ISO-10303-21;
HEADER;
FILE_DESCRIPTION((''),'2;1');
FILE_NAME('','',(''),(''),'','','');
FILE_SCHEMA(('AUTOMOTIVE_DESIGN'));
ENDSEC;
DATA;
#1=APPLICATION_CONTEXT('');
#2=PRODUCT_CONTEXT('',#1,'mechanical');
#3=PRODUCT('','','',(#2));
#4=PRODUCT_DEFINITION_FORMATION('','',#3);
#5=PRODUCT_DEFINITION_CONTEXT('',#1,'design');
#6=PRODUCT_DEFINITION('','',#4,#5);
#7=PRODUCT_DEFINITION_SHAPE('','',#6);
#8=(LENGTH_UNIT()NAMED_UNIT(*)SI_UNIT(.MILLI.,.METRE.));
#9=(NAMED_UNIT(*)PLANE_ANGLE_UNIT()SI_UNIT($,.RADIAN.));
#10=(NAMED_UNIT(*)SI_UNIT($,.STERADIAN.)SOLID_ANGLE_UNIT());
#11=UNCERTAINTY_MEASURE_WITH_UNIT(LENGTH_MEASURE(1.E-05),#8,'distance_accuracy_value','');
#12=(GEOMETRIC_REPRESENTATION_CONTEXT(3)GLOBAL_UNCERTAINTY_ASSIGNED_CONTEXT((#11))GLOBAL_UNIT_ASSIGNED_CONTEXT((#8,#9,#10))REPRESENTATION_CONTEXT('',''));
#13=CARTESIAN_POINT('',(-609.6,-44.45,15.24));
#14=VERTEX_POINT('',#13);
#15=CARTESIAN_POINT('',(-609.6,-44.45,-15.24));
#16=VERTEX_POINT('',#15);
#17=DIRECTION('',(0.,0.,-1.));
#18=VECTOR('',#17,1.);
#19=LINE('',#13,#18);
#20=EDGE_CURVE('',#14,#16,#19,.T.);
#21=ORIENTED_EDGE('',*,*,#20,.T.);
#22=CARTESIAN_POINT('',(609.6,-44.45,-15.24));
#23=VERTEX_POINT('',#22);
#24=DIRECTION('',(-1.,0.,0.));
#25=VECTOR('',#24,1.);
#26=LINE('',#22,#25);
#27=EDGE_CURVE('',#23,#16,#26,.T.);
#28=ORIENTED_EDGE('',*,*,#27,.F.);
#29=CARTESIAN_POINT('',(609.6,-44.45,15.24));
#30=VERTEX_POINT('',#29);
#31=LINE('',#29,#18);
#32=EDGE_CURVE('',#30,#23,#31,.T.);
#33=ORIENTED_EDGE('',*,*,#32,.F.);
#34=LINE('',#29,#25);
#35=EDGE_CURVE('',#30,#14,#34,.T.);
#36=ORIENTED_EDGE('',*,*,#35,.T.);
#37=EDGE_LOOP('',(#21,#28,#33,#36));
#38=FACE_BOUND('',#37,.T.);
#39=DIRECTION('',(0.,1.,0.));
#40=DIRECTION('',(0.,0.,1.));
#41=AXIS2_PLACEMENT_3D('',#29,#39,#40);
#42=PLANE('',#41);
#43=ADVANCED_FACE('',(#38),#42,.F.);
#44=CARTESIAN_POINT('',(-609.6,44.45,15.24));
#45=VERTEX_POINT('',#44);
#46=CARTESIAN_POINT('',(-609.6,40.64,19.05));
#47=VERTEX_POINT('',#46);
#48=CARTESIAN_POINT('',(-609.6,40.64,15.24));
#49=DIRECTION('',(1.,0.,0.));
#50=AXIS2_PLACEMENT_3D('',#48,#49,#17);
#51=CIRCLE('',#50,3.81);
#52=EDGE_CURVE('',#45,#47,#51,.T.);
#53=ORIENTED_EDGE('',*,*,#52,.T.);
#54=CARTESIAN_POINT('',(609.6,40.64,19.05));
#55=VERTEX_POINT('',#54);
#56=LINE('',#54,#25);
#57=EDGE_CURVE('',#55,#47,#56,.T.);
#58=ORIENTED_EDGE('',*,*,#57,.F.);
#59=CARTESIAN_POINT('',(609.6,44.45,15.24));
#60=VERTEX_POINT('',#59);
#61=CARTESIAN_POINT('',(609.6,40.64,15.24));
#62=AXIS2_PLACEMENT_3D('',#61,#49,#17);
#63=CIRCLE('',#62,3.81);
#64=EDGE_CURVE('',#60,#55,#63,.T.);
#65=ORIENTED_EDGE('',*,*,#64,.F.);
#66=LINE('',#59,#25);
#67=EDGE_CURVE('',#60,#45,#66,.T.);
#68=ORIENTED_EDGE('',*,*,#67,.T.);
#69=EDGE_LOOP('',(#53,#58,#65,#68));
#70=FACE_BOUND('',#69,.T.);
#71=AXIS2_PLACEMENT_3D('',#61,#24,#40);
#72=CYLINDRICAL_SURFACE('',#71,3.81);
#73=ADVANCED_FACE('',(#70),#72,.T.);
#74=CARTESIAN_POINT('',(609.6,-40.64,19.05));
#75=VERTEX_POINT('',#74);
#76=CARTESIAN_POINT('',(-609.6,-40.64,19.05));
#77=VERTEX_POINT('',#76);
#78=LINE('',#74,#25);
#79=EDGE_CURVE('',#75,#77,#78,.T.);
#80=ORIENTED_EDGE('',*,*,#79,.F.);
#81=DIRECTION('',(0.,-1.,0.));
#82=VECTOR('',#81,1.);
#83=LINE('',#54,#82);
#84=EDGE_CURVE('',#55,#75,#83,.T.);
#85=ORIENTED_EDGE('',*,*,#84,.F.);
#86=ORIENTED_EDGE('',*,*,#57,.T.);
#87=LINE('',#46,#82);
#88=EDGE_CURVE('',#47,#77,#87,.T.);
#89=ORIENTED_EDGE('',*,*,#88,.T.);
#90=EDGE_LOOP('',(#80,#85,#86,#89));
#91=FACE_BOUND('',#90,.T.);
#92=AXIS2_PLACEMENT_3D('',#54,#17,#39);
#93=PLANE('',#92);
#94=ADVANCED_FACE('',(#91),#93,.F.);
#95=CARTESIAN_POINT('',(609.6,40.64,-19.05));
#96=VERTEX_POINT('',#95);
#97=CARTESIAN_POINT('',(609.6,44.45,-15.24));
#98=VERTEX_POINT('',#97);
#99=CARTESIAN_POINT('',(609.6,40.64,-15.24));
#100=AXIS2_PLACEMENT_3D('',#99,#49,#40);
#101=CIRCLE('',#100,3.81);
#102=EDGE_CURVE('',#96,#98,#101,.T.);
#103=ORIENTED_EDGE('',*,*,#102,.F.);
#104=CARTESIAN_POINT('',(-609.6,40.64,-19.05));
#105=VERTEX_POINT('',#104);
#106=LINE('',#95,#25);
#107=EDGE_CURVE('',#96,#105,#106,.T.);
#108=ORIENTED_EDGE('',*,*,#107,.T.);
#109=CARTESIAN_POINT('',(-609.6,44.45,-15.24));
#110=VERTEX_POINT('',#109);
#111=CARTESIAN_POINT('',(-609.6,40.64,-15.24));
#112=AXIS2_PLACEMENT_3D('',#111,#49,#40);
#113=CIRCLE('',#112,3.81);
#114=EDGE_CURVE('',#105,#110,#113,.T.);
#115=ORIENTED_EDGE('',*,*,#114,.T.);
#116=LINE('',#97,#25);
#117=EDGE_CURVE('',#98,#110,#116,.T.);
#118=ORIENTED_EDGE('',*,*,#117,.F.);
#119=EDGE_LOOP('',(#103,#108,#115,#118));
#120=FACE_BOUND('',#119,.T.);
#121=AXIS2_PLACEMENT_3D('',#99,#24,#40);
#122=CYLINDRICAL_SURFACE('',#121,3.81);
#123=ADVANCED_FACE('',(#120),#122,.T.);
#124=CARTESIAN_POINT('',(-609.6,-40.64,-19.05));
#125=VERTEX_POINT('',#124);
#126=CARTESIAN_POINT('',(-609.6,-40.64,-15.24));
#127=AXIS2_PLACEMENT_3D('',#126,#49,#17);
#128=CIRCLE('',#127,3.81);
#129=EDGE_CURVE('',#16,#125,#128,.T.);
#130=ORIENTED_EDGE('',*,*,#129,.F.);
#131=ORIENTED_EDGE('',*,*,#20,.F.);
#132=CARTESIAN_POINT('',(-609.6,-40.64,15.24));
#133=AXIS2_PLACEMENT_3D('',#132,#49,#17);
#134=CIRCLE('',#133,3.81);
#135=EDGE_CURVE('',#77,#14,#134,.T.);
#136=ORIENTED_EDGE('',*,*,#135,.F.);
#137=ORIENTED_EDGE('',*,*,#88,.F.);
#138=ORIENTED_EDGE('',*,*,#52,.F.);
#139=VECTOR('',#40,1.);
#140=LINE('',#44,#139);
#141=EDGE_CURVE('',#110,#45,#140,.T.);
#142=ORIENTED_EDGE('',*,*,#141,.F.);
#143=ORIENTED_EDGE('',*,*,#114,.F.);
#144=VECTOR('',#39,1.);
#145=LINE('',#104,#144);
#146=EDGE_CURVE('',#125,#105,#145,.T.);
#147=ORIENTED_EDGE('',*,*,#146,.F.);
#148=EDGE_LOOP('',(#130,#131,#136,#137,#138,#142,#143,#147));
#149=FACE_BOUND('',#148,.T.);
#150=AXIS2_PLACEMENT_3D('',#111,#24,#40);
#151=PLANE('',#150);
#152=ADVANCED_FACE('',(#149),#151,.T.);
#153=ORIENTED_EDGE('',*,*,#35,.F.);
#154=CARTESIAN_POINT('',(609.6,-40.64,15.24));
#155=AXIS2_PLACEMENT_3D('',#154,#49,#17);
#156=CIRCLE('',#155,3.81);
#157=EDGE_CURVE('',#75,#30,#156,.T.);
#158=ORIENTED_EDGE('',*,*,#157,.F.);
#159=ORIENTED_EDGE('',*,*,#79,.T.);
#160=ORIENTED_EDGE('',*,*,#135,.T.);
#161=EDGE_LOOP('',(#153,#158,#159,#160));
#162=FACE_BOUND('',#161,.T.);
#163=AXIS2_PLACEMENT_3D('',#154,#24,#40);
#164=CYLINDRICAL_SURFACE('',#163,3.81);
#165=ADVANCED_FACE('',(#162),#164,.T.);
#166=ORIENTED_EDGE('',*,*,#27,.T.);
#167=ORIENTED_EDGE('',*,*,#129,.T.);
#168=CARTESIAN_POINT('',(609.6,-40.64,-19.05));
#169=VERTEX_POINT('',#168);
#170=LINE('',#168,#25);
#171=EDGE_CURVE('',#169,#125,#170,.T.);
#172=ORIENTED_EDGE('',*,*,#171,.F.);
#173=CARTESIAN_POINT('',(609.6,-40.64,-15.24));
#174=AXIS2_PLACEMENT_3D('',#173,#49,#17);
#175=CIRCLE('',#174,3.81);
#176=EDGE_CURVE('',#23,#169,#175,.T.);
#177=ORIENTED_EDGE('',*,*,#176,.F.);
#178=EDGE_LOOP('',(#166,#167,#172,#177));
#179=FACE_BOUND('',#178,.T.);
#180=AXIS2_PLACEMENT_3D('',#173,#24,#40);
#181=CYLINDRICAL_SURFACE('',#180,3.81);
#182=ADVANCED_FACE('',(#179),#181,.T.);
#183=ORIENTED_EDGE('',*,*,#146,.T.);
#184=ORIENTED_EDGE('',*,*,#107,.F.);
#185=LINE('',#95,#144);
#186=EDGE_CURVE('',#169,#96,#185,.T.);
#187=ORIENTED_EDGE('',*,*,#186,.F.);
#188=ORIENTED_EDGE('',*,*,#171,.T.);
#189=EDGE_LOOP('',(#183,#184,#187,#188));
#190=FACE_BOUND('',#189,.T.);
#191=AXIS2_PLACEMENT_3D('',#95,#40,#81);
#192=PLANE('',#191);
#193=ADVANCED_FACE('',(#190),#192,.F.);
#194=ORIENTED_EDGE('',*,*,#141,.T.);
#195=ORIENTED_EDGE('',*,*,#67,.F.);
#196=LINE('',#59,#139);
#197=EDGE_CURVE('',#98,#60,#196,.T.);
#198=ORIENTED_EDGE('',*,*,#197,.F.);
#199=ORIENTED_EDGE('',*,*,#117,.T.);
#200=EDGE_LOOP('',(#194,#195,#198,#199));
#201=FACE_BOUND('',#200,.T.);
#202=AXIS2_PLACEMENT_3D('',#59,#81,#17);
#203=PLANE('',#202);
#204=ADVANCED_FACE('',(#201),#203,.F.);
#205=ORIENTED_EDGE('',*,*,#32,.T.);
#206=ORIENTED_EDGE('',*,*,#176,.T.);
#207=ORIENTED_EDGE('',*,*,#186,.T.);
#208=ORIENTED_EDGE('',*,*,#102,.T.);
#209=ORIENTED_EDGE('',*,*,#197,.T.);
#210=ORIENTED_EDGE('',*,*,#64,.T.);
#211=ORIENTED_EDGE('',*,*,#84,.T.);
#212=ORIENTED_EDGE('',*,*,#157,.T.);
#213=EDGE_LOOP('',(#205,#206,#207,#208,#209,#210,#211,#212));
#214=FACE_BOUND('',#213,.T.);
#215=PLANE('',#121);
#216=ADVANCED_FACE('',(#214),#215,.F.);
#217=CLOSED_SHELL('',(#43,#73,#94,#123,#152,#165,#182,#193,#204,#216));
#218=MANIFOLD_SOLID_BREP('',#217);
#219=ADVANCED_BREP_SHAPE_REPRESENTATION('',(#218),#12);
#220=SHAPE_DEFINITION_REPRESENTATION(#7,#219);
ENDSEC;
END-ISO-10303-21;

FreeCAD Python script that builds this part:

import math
import FreeCAD as App
import Part
import Sketcher
Q = App.Units.Quantity

doc = App.newDocument("Part")
params = doc.addObject("Spreadsheet::Sheet", "Params")
for row, (alias, value) in enumerate([
    ("sketch1_radius", "0.15 in"),
    ("sketch1_width", "3.2 in"),
    ("sketch1_height", "1.2 in"),
    ("pad1_length", "48 in"),
], start=1):
    params.set(f"A{row}", alias)
    params.set(f"B{row}", "=" + value)
    params.setAlias(f"B{row}", alias)

body = doc.addObject("PartDesign::Body", "Body")

sketch1 = body.newObject("Sketcher::SketchObject", "Sketch")
sketch1.AttachmentSupport = (doc.getObject("YZ_Plane"), [""])
sketch1.MapMode = "FlatFace"
sketch1.addGeometry(Part.LineSegment(App.Vector(44.5, -15.2, 0), App.Vector(44.5, 15.2, 0)), False)
sketch1.addGeometry(Part.ArcOfCircle(Part.Circle(App.Vector(40.6, 15.2, 0), App.Vector(0, 0, 1), 3.8), math.radians(0), math.radians(90)), False)
sketch1.addGeometry(Part.LineSegment(App.Vector(40.6, 19.1, 0), App.Vector(-40.6, 19.1, 0)), False)
sketch1.addGeometry(Part.ArcOfCircle(Part.Circle(App.Vector(-40.6, 15.2, 0), App.Vector(0, 0, 1), 3.8), math.radians(90), math.radians(180)), False)
sketch1.addGeometry(Part.LineSegment(App.Vector(-44.5, 15.2, 0), App.Vector(-44.5, -15.2, 0)), False)
sketch1.addGeometry(Part.ArcOfCircle(Part.Circle(App.Vector(-40.6, -15.2, 0), App.Vector(0, 0, 1), 3.8), math.radians(-180), math.radians(-90)), False)
sketch1.addGeometry(Part.LineSegment(App.Vector(-40.6, -19.1, 0), App.Vector(40.6, -19.1, 0)), False)
sketch1.addGeometry(Part.ArcOfCircle(Part.Circle(App.Vector(40.6, -15.2, 0), App.Vector(0, 0, 1), 3.8), math.radians(-90), math.radians(0)), False)
sketch1.addConstraint(Sketcher.Constraint("Tangent", 0, 2, 1, 1))
sketch1.addConstraint(Sketcher.Constraint("Tangent", 1, 2, 2, 1))
sketch1.addConstraint(Sketcher.Constraint("Tangent", 2, 2, 3, 1))
sketch1.addConstraint(Sketcher.Constraint("Tangent", 3, 2, 4, 1))
sketch1.addConstraint(Sketcher.Constraint("Tangent", 4, 2, 5, 1))
sketch1.addConstraint(Sketcher.Constraint("Tangent", 5, 2, 6, 1))
sketch1.addConstraint(Sketcher.Constraint("Tangent", 6, 2, 7, 1))
sketch1.addConstraint(Sketcher.Constraint("Tangent", 7, 2, 0, 1))
sketch1.addConstraint(Sketcher.Constraint("Vertical", 0))
sketch1.addConstraint(Sketcher.Constraint("Horizontal", 2))
sketch1.addConstraint(Sketcher.Constraint("Vertical", 4))
sketch1.addConstraint(Sketcher.Constraint("Horizontal", 6))
sketch1.addConstraint(Sketcher.Constraint("Equal", 1, 3))
sketch1.addConstraint(Sketcher.Constraint("Equal", 3, 5))
sketch1.addConstraint(Sketcher.Constraint("Equal", 5, 7))
sketch1.addConstraint(Sketcher.Constraint("Symmetric", 1, 3, 5, 3, -1, 1))
sketch1.addConstraint(Sketcher.Constraint("Radius", 1, Q("0.15 in")))
sketch1.addConstraint(Sketcher.Constraint("DistanceX", 2, 2, 2, 1, Q("3.2 in")))
sketch1.addConstraint(Sketcher.Constraint("DistanceY", 0, 1, 0, 2, Q("1.2 in")))
sketch1.setExpression("Constraints[16]", "Params.sketch1_radius")
sketch1.setExpression("Constraints[17]", "Params.sketch1_width")
sketch1.setExpression("Constraints[18]", "Params.sketch1_height")
pad1 = body.newObject("PartDesign::Pad", "Pad")
pad1.Profile = sketch1
pad1.setExpression("Length", "Params.pad1_length")
pad1.Midplane = True

doc.recompute()
